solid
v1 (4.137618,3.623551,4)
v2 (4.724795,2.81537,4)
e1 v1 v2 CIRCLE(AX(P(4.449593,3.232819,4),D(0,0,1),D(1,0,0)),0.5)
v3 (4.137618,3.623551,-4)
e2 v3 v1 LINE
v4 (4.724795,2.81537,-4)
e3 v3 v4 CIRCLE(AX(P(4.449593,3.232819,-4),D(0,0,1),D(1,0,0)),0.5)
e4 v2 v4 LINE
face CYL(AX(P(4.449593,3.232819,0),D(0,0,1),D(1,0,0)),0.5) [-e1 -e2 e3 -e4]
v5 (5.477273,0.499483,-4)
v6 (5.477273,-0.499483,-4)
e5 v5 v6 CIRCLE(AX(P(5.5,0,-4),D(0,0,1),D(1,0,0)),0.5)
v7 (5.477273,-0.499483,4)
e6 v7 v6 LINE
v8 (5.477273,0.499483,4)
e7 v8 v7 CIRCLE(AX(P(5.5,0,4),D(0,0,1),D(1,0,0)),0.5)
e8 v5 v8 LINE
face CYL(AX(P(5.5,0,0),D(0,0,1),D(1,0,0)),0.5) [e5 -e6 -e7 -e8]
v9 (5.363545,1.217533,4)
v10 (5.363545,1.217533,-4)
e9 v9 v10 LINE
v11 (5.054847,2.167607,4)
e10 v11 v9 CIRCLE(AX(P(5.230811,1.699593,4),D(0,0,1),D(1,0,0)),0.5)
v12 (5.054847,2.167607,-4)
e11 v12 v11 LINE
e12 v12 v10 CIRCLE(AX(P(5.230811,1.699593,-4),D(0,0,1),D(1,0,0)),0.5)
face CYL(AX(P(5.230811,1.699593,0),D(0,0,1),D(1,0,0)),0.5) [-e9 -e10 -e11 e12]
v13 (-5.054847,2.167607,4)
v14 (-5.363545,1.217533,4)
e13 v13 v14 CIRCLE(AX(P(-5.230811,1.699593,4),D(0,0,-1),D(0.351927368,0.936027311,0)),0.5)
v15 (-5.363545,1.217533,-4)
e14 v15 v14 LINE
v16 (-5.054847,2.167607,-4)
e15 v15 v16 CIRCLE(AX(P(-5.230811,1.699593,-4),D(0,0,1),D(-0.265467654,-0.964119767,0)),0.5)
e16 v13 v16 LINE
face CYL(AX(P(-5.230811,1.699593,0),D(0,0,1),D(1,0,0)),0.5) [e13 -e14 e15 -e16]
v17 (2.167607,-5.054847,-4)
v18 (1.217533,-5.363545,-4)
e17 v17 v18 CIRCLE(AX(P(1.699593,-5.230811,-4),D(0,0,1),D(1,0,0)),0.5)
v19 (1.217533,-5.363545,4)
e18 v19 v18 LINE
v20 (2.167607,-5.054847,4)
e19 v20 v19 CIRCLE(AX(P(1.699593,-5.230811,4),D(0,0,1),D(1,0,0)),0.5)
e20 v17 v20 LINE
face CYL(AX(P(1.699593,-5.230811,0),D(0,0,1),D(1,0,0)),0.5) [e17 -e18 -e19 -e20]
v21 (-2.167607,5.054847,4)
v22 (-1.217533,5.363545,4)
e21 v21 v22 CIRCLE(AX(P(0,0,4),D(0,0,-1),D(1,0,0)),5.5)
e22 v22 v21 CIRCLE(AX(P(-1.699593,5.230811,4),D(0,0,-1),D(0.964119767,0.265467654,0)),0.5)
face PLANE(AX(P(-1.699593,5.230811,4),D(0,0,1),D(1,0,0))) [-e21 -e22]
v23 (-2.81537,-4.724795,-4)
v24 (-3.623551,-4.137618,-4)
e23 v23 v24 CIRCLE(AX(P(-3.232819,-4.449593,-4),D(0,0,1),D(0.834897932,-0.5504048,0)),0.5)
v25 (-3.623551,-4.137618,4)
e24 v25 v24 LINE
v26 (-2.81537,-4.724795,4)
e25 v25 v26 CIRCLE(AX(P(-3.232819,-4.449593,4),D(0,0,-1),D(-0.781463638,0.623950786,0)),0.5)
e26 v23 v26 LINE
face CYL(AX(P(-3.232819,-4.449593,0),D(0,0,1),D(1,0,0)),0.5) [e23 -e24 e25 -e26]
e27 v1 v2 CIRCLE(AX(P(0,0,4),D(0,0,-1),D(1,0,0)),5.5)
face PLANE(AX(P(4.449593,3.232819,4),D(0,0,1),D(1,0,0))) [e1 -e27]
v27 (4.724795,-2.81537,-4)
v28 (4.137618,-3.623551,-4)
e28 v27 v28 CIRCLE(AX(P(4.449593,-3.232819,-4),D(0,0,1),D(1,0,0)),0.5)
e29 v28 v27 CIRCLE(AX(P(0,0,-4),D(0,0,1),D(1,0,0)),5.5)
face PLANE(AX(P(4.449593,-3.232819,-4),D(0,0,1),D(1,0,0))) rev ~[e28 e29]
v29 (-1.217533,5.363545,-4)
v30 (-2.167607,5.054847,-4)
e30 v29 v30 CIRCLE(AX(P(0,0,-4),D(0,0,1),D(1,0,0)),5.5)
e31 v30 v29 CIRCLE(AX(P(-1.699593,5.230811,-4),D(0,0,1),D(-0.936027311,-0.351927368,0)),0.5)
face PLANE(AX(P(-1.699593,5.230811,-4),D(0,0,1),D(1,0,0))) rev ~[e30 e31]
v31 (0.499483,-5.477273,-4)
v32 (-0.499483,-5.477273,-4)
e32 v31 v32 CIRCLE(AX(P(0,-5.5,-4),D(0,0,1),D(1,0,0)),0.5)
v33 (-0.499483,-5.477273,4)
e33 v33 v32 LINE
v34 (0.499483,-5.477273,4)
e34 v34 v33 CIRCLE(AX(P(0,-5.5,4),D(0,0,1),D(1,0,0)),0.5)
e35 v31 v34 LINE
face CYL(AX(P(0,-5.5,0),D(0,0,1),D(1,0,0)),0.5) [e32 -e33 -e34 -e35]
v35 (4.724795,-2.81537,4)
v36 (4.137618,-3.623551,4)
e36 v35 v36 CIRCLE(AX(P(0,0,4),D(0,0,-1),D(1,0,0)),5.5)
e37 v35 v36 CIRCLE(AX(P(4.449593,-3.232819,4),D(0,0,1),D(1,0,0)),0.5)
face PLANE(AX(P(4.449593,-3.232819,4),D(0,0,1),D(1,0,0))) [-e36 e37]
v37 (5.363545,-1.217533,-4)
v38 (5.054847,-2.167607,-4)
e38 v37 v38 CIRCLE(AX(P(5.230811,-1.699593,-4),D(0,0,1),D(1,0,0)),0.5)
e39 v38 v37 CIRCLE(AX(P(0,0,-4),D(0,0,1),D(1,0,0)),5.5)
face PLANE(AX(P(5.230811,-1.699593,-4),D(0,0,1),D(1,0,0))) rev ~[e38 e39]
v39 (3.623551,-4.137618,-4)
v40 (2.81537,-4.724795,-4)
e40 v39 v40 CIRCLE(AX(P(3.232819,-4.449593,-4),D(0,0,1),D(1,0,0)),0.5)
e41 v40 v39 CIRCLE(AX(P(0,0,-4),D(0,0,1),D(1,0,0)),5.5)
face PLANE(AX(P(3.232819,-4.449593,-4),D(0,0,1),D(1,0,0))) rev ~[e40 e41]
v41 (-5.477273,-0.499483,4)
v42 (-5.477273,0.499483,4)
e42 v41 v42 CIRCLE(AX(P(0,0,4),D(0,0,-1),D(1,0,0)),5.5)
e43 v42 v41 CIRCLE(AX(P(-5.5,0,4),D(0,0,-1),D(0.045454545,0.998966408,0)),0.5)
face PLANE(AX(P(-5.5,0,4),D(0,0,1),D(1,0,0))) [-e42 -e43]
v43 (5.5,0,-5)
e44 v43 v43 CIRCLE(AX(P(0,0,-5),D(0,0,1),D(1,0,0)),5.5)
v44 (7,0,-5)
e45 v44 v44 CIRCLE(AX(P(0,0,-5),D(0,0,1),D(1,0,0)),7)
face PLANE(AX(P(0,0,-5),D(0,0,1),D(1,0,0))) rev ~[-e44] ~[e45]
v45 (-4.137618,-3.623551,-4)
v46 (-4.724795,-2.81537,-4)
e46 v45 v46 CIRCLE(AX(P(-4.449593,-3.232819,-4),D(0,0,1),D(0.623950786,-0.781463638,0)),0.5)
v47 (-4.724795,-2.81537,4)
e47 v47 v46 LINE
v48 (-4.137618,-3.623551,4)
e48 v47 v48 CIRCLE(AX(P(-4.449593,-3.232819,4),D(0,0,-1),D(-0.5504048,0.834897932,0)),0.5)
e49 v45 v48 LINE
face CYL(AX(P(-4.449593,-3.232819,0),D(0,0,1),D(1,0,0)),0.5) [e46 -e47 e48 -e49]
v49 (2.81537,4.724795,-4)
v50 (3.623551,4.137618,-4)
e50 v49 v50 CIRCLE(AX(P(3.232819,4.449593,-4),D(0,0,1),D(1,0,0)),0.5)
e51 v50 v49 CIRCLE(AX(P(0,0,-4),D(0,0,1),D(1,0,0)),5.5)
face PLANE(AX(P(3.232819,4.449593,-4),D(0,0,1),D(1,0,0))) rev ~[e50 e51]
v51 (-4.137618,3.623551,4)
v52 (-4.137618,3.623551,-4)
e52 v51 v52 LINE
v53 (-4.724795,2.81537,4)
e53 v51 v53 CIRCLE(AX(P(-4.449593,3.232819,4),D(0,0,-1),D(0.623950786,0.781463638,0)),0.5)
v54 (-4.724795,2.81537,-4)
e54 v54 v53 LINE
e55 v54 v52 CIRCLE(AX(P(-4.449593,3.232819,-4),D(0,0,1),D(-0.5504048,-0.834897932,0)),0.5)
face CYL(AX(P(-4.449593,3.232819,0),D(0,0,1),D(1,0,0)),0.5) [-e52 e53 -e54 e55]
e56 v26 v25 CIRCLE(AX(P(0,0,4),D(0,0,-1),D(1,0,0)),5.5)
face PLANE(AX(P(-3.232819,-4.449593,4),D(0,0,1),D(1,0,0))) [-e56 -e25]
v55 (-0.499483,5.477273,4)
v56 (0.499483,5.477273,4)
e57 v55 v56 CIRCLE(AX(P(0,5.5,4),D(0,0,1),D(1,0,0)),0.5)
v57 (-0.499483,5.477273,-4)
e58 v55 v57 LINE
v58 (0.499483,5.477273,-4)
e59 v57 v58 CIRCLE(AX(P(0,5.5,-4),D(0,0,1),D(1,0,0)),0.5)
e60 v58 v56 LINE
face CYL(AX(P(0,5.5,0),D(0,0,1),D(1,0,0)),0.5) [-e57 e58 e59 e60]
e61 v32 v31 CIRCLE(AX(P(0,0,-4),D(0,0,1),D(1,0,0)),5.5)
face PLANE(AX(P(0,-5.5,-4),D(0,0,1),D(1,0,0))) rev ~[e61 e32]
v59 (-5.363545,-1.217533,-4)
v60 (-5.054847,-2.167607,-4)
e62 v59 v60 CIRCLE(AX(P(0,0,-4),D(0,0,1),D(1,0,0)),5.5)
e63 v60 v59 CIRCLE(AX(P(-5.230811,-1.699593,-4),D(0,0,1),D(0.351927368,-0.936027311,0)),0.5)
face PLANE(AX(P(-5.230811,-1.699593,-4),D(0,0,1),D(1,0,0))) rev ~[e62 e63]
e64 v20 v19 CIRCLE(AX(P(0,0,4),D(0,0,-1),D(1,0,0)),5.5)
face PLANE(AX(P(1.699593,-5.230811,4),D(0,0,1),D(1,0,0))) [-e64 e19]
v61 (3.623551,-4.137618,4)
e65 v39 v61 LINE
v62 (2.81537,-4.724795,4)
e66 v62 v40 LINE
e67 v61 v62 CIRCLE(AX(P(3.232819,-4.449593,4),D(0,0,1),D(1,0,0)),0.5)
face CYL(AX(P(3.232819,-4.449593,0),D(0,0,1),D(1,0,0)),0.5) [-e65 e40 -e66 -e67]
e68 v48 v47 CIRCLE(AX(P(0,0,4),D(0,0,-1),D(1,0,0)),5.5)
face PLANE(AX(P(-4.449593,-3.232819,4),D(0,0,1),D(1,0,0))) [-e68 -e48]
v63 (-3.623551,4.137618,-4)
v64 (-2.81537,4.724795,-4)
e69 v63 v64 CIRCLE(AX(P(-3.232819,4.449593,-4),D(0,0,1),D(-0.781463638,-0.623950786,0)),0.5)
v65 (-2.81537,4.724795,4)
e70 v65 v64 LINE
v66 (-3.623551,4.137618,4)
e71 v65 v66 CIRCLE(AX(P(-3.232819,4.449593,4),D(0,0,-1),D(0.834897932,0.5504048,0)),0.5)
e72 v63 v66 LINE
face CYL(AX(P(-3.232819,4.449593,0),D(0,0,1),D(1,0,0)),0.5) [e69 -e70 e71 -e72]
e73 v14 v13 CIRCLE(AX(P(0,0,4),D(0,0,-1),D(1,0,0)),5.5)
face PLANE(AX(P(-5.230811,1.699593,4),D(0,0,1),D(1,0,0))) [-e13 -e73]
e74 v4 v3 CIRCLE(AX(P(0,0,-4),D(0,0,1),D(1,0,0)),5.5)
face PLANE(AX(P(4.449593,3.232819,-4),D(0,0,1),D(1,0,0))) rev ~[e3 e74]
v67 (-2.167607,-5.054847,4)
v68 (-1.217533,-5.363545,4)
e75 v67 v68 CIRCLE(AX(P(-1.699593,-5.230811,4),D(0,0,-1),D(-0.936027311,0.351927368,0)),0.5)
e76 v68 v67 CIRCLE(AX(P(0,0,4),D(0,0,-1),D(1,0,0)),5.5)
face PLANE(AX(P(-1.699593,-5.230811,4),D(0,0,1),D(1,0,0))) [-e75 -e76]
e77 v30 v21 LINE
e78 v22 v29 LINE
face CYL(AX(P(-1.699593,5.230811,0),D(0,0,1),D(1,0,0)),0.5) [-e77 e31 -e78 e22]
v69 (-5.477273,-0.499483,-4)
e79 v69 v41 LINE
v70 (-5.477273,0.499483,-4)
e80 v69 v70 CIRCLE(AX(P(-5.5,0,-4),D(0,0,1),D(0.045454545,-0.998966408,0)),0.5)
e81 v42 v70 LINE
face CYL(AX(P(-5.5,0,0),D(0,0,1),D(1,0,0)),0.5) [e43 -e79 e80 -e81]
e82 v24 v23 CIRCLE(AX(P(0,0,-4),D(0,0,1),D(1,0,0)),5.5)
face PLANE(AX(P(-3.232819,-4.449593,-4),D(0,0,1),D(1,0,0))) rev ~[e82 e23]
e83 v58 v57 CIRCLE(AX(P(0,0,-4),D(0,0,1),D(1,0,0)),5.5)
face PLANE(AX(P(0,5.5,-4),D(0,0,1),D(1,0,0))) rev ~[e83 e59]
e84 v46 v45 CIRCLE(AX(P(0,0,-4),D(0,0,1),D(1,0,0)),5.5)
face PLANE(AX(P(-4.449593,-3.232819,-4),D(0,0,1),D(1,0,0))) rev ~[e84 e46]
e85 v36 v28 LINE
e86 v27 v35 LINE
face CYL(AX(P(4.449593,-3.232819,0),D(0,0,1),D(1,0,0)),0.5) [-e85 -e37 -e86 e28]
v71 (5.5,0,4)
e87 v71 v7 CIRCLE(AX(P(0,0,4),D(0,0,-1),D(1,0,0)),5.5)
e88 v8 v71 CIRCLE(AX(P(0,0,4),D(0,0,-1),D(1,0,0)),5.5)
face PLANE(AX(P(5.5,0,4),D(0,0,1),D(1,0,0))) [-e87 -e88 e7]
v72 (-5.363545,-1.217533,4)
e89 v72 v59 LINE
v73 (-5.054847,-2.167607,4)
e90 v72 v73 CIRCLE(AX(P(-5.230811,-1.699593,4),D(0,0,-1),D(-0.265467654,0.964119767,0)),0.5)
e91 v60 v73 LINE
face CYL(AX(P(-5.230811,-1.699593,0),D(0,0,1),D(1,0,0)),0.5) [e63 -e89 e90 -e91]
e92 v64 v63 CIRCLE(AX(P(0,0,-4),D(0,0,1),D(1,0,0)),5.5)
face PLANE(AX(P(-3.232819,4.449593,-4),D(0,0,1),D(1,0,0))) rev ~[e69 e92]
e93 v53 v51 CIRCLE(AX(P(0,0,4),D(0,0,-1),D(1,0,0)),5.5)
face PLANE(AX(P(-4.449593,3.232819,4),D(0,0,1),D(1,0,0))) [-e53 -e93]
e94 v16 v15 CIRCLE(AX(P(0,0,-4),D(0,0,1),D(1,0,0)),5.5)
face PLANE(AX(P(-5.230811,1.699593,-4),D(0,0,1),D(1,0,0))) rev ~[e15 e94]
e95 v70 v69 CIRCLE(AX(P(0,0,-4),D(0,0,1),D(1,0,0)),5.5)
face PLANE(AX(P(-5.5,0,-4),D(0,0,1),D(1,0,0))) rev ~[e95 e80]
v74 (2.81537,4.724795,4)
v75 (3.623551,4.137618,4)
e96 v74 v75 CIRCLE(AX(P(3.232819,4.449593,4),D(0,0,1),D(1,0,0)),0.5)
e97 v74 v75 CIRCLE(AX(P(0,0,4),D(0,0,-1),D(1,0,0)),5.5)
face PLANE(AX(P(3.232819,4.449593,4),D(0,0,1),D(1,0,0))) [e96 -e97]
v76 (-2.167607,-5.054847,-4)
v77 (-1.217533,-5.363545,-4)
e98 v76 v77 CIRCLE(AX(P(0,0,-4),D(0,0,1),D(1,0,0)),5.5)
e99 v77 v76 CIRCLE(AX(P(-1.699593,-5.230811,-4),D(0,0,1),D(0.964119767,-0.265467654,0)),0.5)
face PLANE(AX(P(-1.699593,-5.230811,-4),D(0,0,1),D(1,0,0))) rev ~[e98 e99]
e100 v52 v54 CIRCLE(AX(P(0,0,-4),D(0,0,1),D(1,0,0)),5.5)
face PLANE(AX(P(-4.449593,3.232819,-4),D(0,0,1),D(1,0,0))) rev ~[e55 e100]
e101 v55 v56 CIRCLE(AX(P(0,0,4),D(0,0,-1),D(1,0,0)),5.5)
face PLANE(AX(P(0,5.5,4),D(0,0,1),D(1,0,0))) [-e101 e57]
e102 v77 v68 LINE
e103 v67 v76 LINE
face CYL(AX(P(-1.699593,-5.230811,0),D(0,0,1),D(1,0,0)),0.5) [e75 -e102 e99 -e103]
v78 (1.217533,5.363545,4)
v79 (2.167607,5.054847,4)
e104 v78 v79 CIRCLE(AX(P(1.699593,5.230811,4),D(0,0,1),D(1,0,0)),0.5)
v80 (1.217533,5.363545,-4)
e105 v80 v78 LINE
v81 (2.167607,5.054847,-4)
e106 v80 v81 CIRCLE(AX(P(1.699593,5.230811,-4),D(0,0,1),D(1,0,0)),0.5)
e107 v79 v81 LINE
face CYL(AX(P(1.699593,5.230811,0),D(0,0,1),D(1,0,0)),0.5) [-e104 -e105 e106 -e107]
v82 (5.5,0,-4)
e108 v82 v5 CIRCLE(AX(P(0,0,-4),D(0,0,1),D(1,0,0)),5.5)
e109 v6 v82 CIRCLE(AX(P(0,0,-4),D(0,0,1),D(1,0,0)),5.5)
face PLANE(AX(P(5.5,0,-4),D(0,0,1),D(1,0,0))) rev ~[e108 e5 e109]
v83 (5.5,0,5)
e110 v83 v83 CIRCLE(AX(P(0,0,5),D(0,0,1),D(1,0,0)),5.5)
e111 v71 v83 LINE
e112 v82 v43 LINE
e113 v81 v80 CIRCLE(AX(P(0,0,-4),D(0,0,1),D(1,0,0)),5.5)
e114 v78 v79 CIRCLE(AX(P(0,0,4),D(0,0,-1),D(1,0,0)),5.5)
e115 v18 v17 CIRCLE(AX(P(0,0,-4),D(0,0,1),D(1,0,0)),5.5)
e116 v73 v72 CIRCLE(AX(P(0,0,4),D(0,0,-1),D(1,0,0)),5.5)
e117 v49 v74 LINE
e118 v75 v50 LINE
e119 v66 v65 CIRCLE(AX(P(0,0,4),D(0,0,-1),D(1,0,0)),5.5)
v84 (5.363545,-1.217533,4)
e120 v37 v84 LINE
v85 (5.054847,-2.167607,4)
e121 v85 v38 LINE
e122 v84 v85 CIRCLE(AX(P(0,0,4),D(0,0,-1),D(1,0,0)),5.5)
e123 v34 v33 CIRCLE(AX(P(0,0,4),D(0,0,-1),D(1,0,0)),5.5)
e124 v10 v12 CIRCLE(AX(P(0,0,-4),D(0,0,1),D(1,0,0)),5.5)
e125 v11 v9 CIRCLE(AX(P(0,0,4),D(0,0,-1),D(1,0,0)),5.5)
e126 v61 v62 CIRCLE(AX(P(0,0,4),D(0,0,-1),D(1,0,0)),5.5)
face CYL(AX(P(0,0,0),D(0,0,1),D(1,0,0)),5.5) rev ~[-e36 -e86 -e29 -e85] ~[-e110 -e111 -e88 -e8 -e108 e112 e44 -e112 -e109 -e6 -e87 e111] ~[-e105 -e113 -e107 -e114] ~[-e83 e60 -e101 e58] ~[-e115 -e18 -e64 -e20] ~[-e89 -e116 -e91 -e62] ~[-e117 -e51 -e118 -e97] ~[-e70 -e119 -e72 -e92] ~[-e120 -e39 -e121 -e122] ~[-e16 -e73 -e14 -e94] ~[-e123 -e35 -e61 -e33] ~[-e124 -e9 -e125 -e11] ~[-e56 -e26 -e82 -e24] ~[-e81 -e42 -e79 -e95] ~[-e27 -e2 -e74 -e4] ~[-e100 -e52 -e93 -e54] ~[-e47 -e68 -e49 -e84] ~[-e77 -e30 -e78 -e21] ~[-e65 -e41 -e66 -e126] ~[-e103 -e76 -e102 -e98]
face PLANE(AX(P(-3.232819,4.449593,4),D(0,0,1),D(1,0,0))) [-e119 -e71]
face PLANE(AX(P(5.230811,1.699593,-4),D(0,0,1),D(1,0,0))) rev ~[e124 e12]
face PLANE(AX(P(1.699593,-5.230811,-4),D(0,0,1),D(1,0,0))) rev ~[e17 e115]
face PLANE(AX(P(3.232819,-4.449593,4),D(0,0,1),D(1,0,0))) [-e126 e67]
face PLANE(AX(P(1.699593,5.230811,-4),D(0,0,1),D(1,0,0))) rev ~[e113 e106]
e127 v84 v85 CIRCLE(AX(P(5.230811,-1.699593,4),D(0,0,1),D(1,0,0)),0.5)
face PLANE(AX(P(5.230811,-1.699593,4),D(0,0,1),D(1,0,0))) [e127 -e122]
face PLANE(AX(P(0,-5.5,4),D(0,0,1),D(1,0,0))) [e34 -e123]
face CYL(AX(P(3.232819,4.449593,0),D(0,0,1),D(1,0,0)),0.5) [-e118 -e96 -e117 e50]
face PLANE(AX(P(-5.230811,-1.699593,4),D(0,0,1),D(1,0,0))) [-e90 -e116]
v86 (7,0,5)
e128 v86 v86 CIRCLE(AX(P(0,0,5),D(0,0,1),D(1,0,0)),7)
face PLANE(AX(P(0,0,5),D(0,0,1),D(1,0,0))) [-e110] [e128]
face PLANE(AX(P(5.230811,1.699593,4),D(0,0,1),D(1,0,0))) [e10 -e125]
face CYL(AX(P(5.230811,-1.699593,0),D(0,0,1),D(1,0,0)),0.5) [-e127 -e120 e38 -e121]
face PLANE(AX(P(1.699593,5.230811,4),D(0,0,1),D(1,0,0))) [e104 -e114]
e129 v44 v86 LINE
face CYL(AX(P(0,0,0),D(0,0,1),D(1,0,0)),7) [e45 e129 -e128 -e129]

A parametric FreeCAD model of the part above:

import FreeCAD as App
import Part
import Sketcher
from FreeCAD import Vector

doc = App.newDocument("Part")
body = doc.addObject("PartDesign::Body", "Body")

sketch1 = body.newObject("Sketcher::SketchObject", "Sketch")
sketch1.AttachmentSupport = (doc.getObject("XY_Plane"), [""])
sketch1.MapMode = "FlatFace"
sketch1.addGeometry([
    Part.Circle(Vector(0, 0, 0), Vector(0, 0, 1), 7),
    Part.Circle(Vector(0, 0, 0), Vector(0, 0, 1), 6),
], False)
sketch1.addConstraint([
    Sketcher.Constraint("Coincident", 0, 3, -1, 1),
    Sketcher.Constraint("Coincident", 1, 3, -1, 1),
    Sketcher.Constraint("Diameter", 0, 14.0),
    Sketcher.Constraint("Diameter", 1, 11.0),
])
pad1 = body.newObject("PartDesign::Pad", "Pad")
pad1.Profile = sketch1
pad1.Type = "TwoLengths"
pad1.Length = 5
pad1.Length2 = 5

sketch2 = body.newObject("Sketcher::SketchObject", "Sketch001")
sketch2.AttachmentSupport = (doc.getObject("XY_Plane"), [""])
sketch2.MapMode = "FlatFace"
sketch2.addGeometry([
    Part.Circle(Vector(0, 5.5, 0), Vector(0, 0, 1), 0.5),
    Part.Circle(Vector(-1.7, 5.2, 0), Vector(0, 0, 1), 0.5),
    Part.Circle(Vector(-3.2, 4.4, 0), Vector(0, 0, 1), 0.5),
    Part.Circle(Vector(-4.4, 3.2, 0), Vector(0, 0, 1), 0.5),
    Part.Circle(Vector(-5.2, 1.7, 0), Vector(0, 0, 1), 0.5),
    Part.Circle(Vector(-5.5, 0, 0), Vector(0, 0, 1), 0.5),
    Part.Circle(Vector(-5.2, -1.7, 0), Vector(0, 0, 1), 0.5),
    Part.Circle(Vector(-4.4, -3.2, 0), Vector(0, 0, 1), 0.5),
    Part.Circle(Vector(-3.2, -4.4, 0), Vector(0, 0, 1), 0.5),
    Part.Circle(Vector(-1.7, -5.2, 0), Vector(0, 0, 1), 0.5),
    Part.Circle(Vector(0, -5.5, 0), Vector(0, 0, 1), 0.5),
    Part.Circle(Vector(1.7, -5.2, 0), Vector(0, 0, 1), 0.5),
    Part.Circle(Vector(3.2, -4.4, 0), Vector(0, 0, 1), 0.5),
    Part.Circle(Vector(4.4, -3.2, 0), Vector(0, 0, 1), 0.5),
    Part.Circle(Vector(5.2, -1.7, 0), Vector(0, 0, 1), 0.5),
    Part.Circle(Vector(5.5, 0, 0), Vector(0, 0, 1), 0.5),
    Part.Circle(Vector(5.2, 1.7, 0), Vector(0, 0, 1), 0.5),
    Part.Circle(Vector(4.4, 3.2, 0), Vector(0, 0, 1), 0.5),
    Part.Circle(Vector(3.2, 4.4, 0), Vector(0, 0, 1), 0.5),
    Part.Circle(Vector(1.7, 5.2, 0), Vector(0, 0, 1), 0.5),
], False)
sketch2.addConstraint([
    Sketcher.Constraint("Equal", 0, 1),
    Sketcher.Constraint("Equal", 1, 2),
    Sketcher.Constraint("Equal", 2, 3),
    Sketcher.Constraint("Equal", 3, 4),
    Sketcher.Constraint("Equal", 4, 5),
    Sketcher.Constraint("Equal", 5, 6),
    Sketcher.Constraint("Equal", 6, 7),
    Sketcher.Constraint("Equal", 7, 8),
    Sketcher.Constraint("Equal", 8, 9),
    Sketcher.Constraint("Equal", 9, 10),
    Sketcher.Constraint("Equal", 10, 11),
    Sketcher.Constraint("Equal", 11, 12),
    Sketcher.Constraint("Equal", 12, 13),
    Sketcher.Constraint("Equal", 13, 14),
    Sketcher.Constraint("Equal", 14, 15),
    Sketcher.Constraint("Equal", 15, 16),
    Sketcher.Constraint("Equal", 16, 17),
    Sketcher.Constraint("Equal", 17, 18),
    Sketcher.Constraint("Equal", 18, 19),
    Sketcher.Constraint("Symmetric", 0, 3, 10, 3, -1, 1),
    Sketcher.Constraint("Symmetric", 1, 3, 11, 3, -1, 1),
    Sketcher.Constraint("Symmetric", 2, 3, 12, 3, -1, 1),
    Sketcher.Constraint("Symmetric", 3, 3, 13, 3, -1, 1),
    Sketcher.Constraint("Symmetric", 4, 3, 14, 3, -1, 1),
    Sketcher.Constraint("Symmetric", 5, 3, 15, 3, -1, 1),
    Sketcher.Constraint("Symmetric", 6, 3, 16, 3, -1, 1),
    Sketcher.Constraint("Symmetric", 7, 3, 17, 3, -1, 1),
    Sketcher.Constraint("Symmetric", 8, 3, 18, 3, -1, 1),
    Sketcher.Constraint("Symmetric", 9, 3, 19, 3, -1, 1),
    Sketcher.Constraint("Symmetric", 9, 3, 11, 3, -2),
    Sketcher.Constraint("Symmetric", 8, 3, 12, 3, -2),
    Sketcher.Constraint("Symmetric", 7, 3, 13, 3, -2),
    Sketcher.Constraint("Symmetric", 6, 3, 14, 3, -2),
    Sketcher.Constraint("PointOnObject", 0, 3, -2),
    Sketcher.Constraint("PointOnObject", 5, 3, -1),
    Sketcher.Constraint("Diameter", 0, 1.0),
    Sketcher.Constraint("DistanceY", -1, 1, 0, 3, 5.5),
    Sketcher.Constraint("DistanceX", 5, 3, -1, 1, 5.5),
    Sketcher.Constraint("DistanceX", 3, 3, 1, 3, 2.75),
    Sketcher.Constraint("DistanceY", 4, 3, 2, 3, 2.75),
    Sketcher.Constraint("DistanceY", -1, 1, 1, 3, 5.230811),
    Sketcher.Constraint("DistanceX", 2, 3, -1, 1, 3.232819),
    Sketcher.Constraint("DistanceY", -1, 1, 3, 3, 3.232819),
    Sketcher.Constraint("DistanceX", 4, 3, -1, 1, 5.230811),
    Sketcher.Constraint("DistanceX", 4, 3, 1, 3, 3.531218),
    Sketcher.Constraint("DistanceY", 4, 3, 1, 3, 3.531218),
])
pad2 = body.newObject("PartDesign::Pad", "Pad001")
pad2.Profile = sketch2
pad2.Type = "TwoLengths"
pad2.Length = 4
pad2.Length2 = 4

doc.recompute()
